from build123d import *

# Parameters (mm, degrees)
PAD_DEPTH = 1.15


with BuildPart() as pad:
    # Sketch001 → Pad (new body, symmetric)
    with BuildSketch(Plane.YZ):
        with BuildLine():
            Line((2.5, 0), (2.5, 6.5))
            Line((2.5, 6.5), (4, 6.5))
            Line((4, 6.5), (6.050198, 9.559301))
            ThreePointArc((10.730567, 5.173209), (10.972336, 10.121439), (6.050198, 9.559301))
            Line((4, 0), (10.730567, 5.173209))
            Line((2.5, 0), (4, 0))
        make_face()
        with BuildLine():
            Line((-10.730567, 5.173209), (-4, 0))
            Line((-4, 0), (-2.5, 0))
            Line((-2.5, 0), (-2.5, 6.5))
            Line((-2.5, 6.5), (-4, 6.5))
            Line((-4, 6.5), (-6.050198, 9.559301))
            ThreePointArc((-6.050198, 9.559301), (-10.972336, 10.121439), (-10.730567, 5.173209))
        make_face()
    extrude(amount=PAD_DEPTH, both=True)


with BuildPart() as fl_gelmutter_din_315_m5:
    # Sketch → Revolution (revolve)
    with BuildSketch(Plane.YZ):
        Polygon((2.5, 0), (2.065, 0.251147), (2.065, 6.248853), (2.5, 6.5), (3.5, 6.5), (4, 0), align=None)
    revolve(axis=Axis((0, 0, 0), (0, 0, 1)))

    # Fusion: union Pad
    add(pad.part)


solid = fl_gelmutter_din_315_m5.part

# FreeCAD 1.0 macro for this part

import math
import FreeCAD as App
import Part
import Sketcher

doc = App.newDocument("Part")
body = doc.addObject("PartDesign::Body", "Body")
body.AllowCompound = True

sketch1 = doc.addObject("Sketcher::SketchObject", "Sketch")
body.addObject(sketch1)
sketch1.AttachmentSupport = (doc.YZ_Plane, [""])
sketch1.MapMode = "FlatFace"
sketch1.addGeometry([
    Part.LineSegment(App.Vector(2.5, 6.5, 0), App.Vector(2.5, 0, 0)),
    Part.LineSegment(App.Vector(2.5, 0, 0), App.Vector(4, 0, 0)),
    Part.LineSegment(App.Vector(4, 0, 0), App.Vector(10.7, 5.2, 0)),
    Part.ArcOfCircle(Part.Circle(App.Vector(8.7, 7.8, 0), App.Vector(0, 0, 1), 3.2), math.radians(-52), math.radians(146)),
    Part.LineSegment(App.Vector(6.1, 9.6, 0), App.Vector(4, 6.5, 0)),
    Part.LineSegment(App.Vector(4, 6.5, 0), App.Vector(2.5, 6.5, 0)),
    Part.LineSegment(App.Vector(-10.7, 5.2, 0), App.Vector(-4, 0, 0)),
    Part.LineSegment(App.Vector(-4, 0, 0), App.Vector(-2.5, 0, 0)),
    Part.LineSegment(App.Vector(-2.5, 0, 0), App.Vector(-2.5, 6.5, 0)),
    Part.LineSegment(App.Vector(-2.5, 6.5, 0), App.Vector(-4, 6.5, 0)),
    Part.LineSegment(App.Vector(-4, 6.5, 0), App.Vector(-6.1, 9.6, 0)),
    Part.ArcOfCircle(Part.Circle(App.Vector(-8.7, 7.8, 0), App.Vector(0, 0, 1), 3.2), math.radians(34), math.radians(232)),
], False)
sketch1.addConstraint([
    Sketcher.Constraint("Coincident", 0, 2, 1, 1),
    Sketcher.Constraint("Coincident", 1, 2, 2, 1),
    Sketcher.Constraint("Coincident", 2, 2, 3, 1),
    Sketcher.Constraint("Coincident", 3, 2, 4, 1),
    Sketcher.Constraint("Coincident", 4, 2, 5, 1),
    Sketcher.Constraint("Coincident", 5, 2, 0, 1),
    Sketcher.Constraint("Coincident", 6, 2, 7, 1),
    Sketcher.Constraint("Coincident", 7, 2, 8, 1),
    Sketcher.Constraint("Coincident", 8, 2, 9, 1),
    Sketcher.Constraint("Coincident", 9, 2, 10, 1),
    Sketcher.Constraint("Coincident", 10, 2, 11, 1),
    Sketcher.Constraint("Coincident", 11, 2, 6, 1),
    Sketcher.Constraint("Vertical", 0),
    Sketcher.Constraint("Horizontal", 1),
    Sketcher.Constraint("Horizontal", 5),
    Sketcher.Constraint("Horizontal", 7),
    Sketcher.Constraint("Vertical", 8),
    Sketcher.Constraint("Horizontal", 9),
    Sketcher.Constraint("Equal", 3, 11),
    Sketcher.Constraint("Symmetric", 1, 2, 6, 2, -1, 1),
    Sketcher.Constraint("Symmetric", 3, 3, 11, 3, -2),
    Sketcher.Constraint("Symmetric", 0, 2, 7, 2, -2),
    Sketcher.Constraint("Symmetric", 4, 2, 9, 2, -2),
    Sketcher.Constraint("Horizontal", 3, 2, 10, 2),
    Sketcher.Constraint("Horizontal", 2, 2, 11, 2),
    Sketcher.Constraint("Vertical", 1, 2, 4, 2),
    Sketcher.Constraint("Radius", 3, 3.25),
    Sketcher.Constraint("DistanceX", 1, 1, 1, 2, 1.5),
    Sketcher.Constraint("DistanceY", 0, 2, 0, 1, 6.5),
    Sketcher.Constraint("DistanceX", -1, 1, 1, 2, 4.0),
    Sketcher.Constraint("DistanceX", 11, 3, 3, 3, 17.5),
    Sketcher.Constraint("DistanceY", -1, 1, 3, 3, 7.75),
    Sketcher.Constraint("DistanceX", -1, 1, 3, 2, 6.050198),
    Sketcher.Constraint("Distance", 2, 8.488971),
])
pad1 = doc.addObject("PartDesign::Pad", "Pad")
body.addObject(pad1)
pad1.Profile = sketch1
pad1.Length = 2.3
pad1.Midplane = True
body2 = doc.addObject("PartDesign::Body", "Body001")

sketch2 = doc.addObject("Sketcher::SketchObject", "Sketch001")
body2.addObject(sketch2)
sketch2.AttachmentSupport = (doc.getObject("YZ_Plane001"), [""])
sketch2.MapMode = "FlatFace"
sketch2.addGeometry([
    Part.LineSegment(App.Vector(2.1, 0.3, 0), App.Vector(2.5, 0, 0)),
    Part.LineSegment(App.Vector(2.5, 0, 0), App.Vector(4, 0, 0)),
    Part.LineSegment(App.Vector(4, 0, 0), App.Vector(3.5, 6.5, 0)),
    Part.LineSegment(App.Vector(3.5, 6.5, 0), App.Vector(2.5, 6.5, 0)),
    Part.LineSegment(App.Vector(2.5, 6.5, 0), App.Vector(2.1, 6.2, 0)),
    Part.LineSegment(App.Vector(2.1, 6.2, 0), App.Vector(2.1, 0.3, 0)),
], False)
sketch2.addConstraint([
    Sketcher.Constraint("Coincident", 0, 2, 1, 1),
    Sketcher.Constraint("Coincident", 1, 2, 2, 1),
    Sketcher.Constraint("Coincident", 2, 2, 3, 1),
    Sketcher.Constraint("Coincident", 3, 2, 4, 1),
    Sketcher.Constraint("Coincident", 4, 2, 5, 1),
    Sketcher.Constraint("Coincident", 5, 2, 0, 1),
    Sketcher.Constraint("Horizontal", 1),
    Sketcher.Constraint("Horizontal", 3),
    Sketcher.Constraint("Vertical", 5),
    Sketcher.Constraint("PointOnObject", 0, 2, -1),
    Sketcher.Constraint("Vertical", 0, 2, 3, 2),
    Sketcher.Constraint("Equal", 0, 4),
    Sketcher.Constraint("DistanceX", 3, 2, 3, 1, 1.0),
    Sketcher.Constraint("DistanceX", 1, 1, 1, 2, 1.5),
    Sketcher.Constraint("DistanceX", -1, 1, 1, 2, 4.0),
    Sketcher.Constraint("DistanceY", -1, 1, 2, 2, 6.5),
    Sketcher.Constraint("DistanceX", -1, 1, 4, 2, 2.065),
    Sketcher.Constraint("DistanceY", 5, 2, 5, 1, 5.997706),
])
revolution = doc.addObject("PartDesign::Revolution", "Revolution")
body2.addObject(revolution)
revolution.Profile = sketch2
revolution.ReferenceAxis = (sketch2, ["V_Axis"])
revolution.Angle = 360
doc.recompute()

boolean = doc.addObject("PartDesign::Boolean", "Boolean")
body2.addObject(boolean)
boolean.Type = "Fuse"
boolean.addObjects([body])

doc.recompute()
